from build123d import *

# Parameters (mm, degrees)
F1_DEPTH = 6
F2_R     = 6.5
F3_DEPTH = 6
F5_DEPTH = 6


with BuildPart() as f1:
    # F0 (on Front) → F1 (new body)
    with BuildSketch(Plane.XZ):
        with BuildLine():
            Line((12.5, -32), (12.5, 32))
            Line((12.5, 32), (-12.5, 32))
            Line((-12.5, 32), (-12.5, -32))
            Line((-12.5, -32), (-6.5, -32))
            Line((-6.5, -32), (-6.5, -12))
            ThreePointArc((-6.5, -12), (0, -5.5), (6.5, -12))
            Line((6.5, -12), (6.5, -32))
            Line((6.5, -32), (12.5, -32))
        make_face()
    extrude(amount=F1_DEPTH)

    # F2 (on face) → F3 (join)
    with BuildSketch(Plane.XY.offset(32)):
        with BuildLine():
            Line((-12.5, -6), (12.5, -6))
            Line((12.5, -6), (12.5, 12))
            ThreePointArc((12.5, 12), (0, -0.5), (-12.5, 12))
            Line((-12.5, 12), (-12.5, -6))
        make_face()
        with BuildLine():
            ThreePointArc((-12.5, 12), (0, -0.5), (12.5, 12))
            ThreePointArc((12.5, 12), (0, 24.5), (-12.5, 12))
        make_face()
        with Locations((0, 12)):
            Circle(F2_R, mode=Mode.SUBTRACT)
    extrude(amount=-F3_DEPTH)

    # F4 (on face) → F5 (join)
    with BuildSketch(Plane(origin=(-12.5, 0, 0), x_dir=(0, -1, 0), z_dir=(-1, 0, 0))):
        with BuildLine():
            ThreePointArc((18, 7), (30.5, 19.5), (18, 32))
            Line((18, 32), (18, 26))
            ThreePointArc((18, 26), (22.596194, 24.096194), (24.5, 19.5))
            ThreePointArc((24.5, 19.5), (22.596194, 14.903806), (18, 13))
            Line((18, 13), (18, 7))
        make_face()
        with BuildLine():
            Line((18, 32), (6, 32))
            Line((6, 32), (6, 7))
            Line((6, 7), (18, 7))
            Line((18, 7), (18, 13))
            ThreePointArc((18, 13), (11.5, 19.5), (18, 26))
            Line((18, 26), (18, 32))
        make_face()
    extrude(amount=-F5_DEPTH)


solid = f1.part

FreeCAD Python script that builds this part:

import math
import FreeCAD as App
import Part
import Sketcher

V = App.Vector

doc = App.newDocument("Part")
params = doc.addObject("Spreadsheet::Sheet", "Params")
for row, (alias, value) in enumerate([
    ("sketch1_radius", "6.5 mm"),
    ("sketch1_width", "25 mm"),
    ("sketch1_height", "64 mm"),
    ("sketch1_height2", "20 mm"),
    ("pad1_length", "6 mm"),
    ("sketch2_diameter", "13 mm"),
    ("sketch2_radius", "12.5 mm"),
    ("sketch2_height", "18 mm"),
    ("pad2_length", "6 mm"),
    ("sketch3_radius", "12.5 mm"),
    ("sketch3_radius2", "6.5 mm"),
    ("sketch3_width", "12 mm"),
    ("pad3_length", "6 mm"),
], start=1):
    params.set(f"A{row}", alias)
    params.set(f"B{row}", "=" + value)
    params.setAlias(f"B{row}", alias)

body = doc.addObject("PartDesign::Body", "Body")

sketch1 = body.newObject("Sketcher::SketchObject", "Sketch")
sketch1.AttachmentSupport = (doc.getObject("XZ_Plane"), [""])
sketch1.MapMode = "FlatFace"
sketch1.addGeometry(Part.LineSegment(V(12, -32, 0), V(12, 32, 0)), False)
sketch1.addGeometry(Part.LineSegment(V(12, 32, 0), V(-12, 32, 0)), False)
sketch1.addGeometry(Part.LineSegment(V(-12, 32, 0), V(-12, -32, 0)), False)
sketch1.addGeometry(Part.LineSegment(V(-12, -32, 0), V(-6, -32, 0)), False)
sketch1.addGeometry(Part.LineSegment(V(-6, -32, 0), V(-6, -12, 0)), False)
sketch1.addGeometry(Part.ArcOfCircle(Part.Circle(V(0, -12, 0), V(0, 0, 1), 6), math.radians(0), math.radians(180)), False)
sketch1.addGeometry(Part.LineSegment(V(6, -12, 0), V(6, -32, 0)), False)
sketch1.addGeometry(Part.LineSegment(V(6, -32, 0), V(12, -32, 0)), False)
sketch1.addConstraint(Sketcher.Constraint("Coincident", 0, 2, 1, 1))
sketch1.addConstraint(Sketcher.Constraint("Coincident", 1, 2, 2, 1))
sketch1.addConstraint(Sketcher.Constraint("Coincident", 2, 2, 3, 1))
sketch1.addConstraint(Sketcher.Constraint("Coincident", 3, 2, 4, 1))
sketch1.addConstraint(Sketcher.Constraint("Tangent", 4, 2, 5, 2))
sketch1.addConstraint(Sketcher.Constraint("Tangent", 5, 1, 6, 1))
sketch1.addConstraint(Sketcher.Constraint("Coincident", 6, 2, 7, 1))
sketch1.addConstraint(Sketcher.Constraint("Coincident", 7, 2, 0, 1))
sketch1.addConstraint(Sketcher.Constraint("Vertical", 0))
sketch1.addConstraint(Sketcher.Constraint("Horizontal", 1))
sketch1.addConstraint(Sketcher.Constraint("Vertical", 2))
sketch1.addConstraint(Sketcher.Constraint("Horizontal", 3))
sketch1.addConstraint(Sketcher.Constraint("Vertical", 4))
sketch1.addConstraint(Sketcher.Constraint("Vertical", 6))
sketch1.addConstraint(Sketcher.Constraint("Horizontal", 7))
sketch1.addConstraint(Sketcher.Constraint("Symmetric", 0, 2, 2, 2, -1, 1))
sketch1.addConstraint(Sketcher.Constraint("Symmetric", 3, 2, 6, 2, -2))
sketch1.addConstraint(Sketcher.Constraint("Radius", 5, 6.5))
sketch1.addConstraint(Sketcher.Constraint("DistanceX", 1, 2, 1, 1, 25.0))
sketch1.addConstraint(Sketcher.Constraint("DistanceY", 0, 1, 0, 2, 64.0))
sketch1.addConstraint(Sketcher.Constraint("DistanceY", 4, 1, 4, 2, 20.0))
sketch1.setExpression("Constraints[17]", "Params.sketch1_radius")
sketch1.setExpression("Constraints[18]", "Params.sketch1_width")
sketch1.setExpression("Constraints[19]", "Params.sketch1_height")
sketch1.setExpression("Constraints[20]", "Params.sketch1_height2")
pad1 = body.newObject("PartDesign::Pad", "Pad")
pad1.Profile = sketch1
pad1.setExpression("Length", "Params.pad1_length")

sketch2 = body.newObject("Sketcher::SketchObject", "Sketch001")
sketch2.AttachmentSupport = (doc.getObject("XY_Plane"), [""])
sketch2.MapMode = "FlatFace"
sketch2.AttachmentOffset = App.Placement(V(0, 0, 32), App.Rotation())
sketch2.addGeometry(Part.LineSegment(V(-12, -6, 0), V(12, -6, 0)), False)
sketch2.addGeometry(Part.LineSegment(V(12, -6, 0), V(12, 12, 0)), False)
sketch2.addGeometry(Part.ArcOfCircle(Part.Circle(V(0, 12, 0), V(0, 0, 1), 12), math.radians(0), math.radians(180)), False)
sketch2.addGeometry(Part.LineSegment(V(-12, 12, 0), V(-12, -6, 0)), False)
sketch2.addGeometry(Part.Circle(V(0, 12, 0), V(0, 0, 1), 6), False)
sketch2.addConstraint(Sketcher.Constraint("Coincident", 0, 2, 1, 1))
sketch2.addConstraint(Sketcher.Constraint("Tangent", 1, 2, 2, 1))
sketch2.addConstraint(Sketcher.Constraint("Tangent", 2, 2, 3, 1))
sketch2.addConstraint(Sketcher.Constraint("Coincident", 3, 2, 0, 1))
sketch2.addConstraint(Sketcher.Constraint("Horizontal", 0))
sketch2.addConstraint(Sketcher.Constraint("Vertical", 1))
sketch2.addConstraint(Sketcher.Constraint("Vertical", 3))
sketch2.addConstraint(Sketcher.Constraint("Coincident", 4, 3, 2, 3))
sketch2.addConstraint(Sketcher.Constraint("PointOnObject", 2, 3, -2))
sketch2.addConstraint(Sketcher.Constraint("Diameter", 4, 13.0))
sketch2.addConstraint(Sketcher.Constraint("Radius", 2, 12.5))
sketch2.addConstraint(Sketcher.Constraint("DistanceY", 1, 1, 1, 2, 18.0))
sketch2.addConstraint(Sketcher.Constraint("DistanceY", -1, 1, 2, 3, 12.0))
sketch2.setExpression("Constraints[9]", "Params.sketch2_diameter")
sketch2.setExpression("Constraints[10]", "Params.sketch2_radius")
sketch2.setExpression("Constraints[11]", "Params.sketch2_height")
pad2 = body.newObject("PartDesign::Pad", "Pad001")
pad2.Profile = sketch2
pad2.setExpression("Length", "Params.pad2_length")
pad2.Reversed = True

sketch3 = body.newObject("Sketcher::SketchObject", "Sketch002")
sketch3.AttachmentSupport = (doc.getObject("YZ_Plane"), [""])
sketch3.MapMode = "FlatFace"
sketch3.AttachmentOffset = App.Placement(V(0, 0, -12.5), App.Rotation())
sketch3.addGeometry(Part.ArcOfCircle(Part.Circle(V(-18, 20, 0), V(0, 0, 1), 12), math.radians(90), math.radians(270)), False)
sketch3.addGeometry(Part.LineSegment(V(-18, 32, 0), V(-6, 32, 0)), False)
sketch3.addGeometry(Part.LineSegment(V(-6, 32, 0), V(-6, 7, 0)), False)
sketch3.addGeometry(Part.LineSegment(V(-6, 7, 0), V(-18, 7, 0)), False)
sketch3.addGeometry(Part.ArcOfCircle(Part.Circle(V(-18, 20, 0), V(0, 0, 1), 7), math.radians(-180), math.radians(-90)), False)
sketch3.addGeometry(Part.ArcOfCircle(Part.Circle(V(-18, 20, 0), V(0, 0, 1), 6), math.radians(-90), math.radians(90)), False)
sketch3.addGeometry(Part.ArcOfCircle(Part.Circle(V(-18, 19, 0), V(0, 0, 1), 7), math.radians(90), math.radians(180)), False)
sketch3.addConstraint(Sketcher.Constraint("Tangent", 0, 1, 1, 1))
sketch3.addConstraint(Sketcher.Constraint("Coincident", 1, 2, 2, 1))
sketch3.addConstraint(Sketcher.Constraint("Coincident", 2, 2, 3, 1))
sketch3.addConstraint(Sketcher.Constraint("Tangent", 3, 2, 0, 2))
sketch3.addConstraint(Sketcher.Constraint("Tangent", 4, 2, 5, 1))
sketch3.addConstraint(Sketcher.Constraint("Tangent", 5, 2, 6, 1))
sketch3.addConstraint(Sketcher.Constraint("Tangent", 6, 2, 4, 1))
sketch3.addConstraint(Sketcher.Constraint("Horizontal", 1))
sketch3.addConstraint(Sketcher.Constraint("Vertical", 2))
sketch3.addConstraint(Sketcher.Constraint("Horizontal", 3))
sketch3.addConstraint(Sketcher.Constraint("Coincident", 4, 3, 0, 3))
sketch3.addConstraint(Sketcher.Constraint("Horizontal", 5, 3, 6, 2))
sketch3.addConstraint(Sketcher.Constraint("Vertical", 3, 2, 4, 2))
sketch3.addConstraint(Sketcher.Constraint("Vertical", 4, 2, 5, 2))
sketch3.addConstraint(Sketcher.Constraint("Radius", 0, 12.5))
sketch3.addConstraint(Sketcher.Constraint("Radius", 4, 6.5))
sketch3.addConstraint(Sketcher.Constraint("DistanceX", 1, 1, 1, 2, 12.0))
sketch3.addConstraint(Sketcher.Constraint("DistanceX", 0, 3, -1, 1, 18.0))
sketch3.addConstraint(Sketcher.Constraint("DistanceY", -1, 1, 0, 1, 32.0))
sketch3.setExpression("Constraints[14]", "Params.sketch3_radius")
sketch3.setExpression("Constraints[15]", "Params.sketch3_radius2")
sketch3.setExpression("Constraints[16]", "Params.sketch3_width")
pad3 = body.newObject("PartDesign::Pad", "Pad002")
pad3.Profile = sketch3
pad3.setExpression("Length", "Params.pad3_length")

doc.recompute()
